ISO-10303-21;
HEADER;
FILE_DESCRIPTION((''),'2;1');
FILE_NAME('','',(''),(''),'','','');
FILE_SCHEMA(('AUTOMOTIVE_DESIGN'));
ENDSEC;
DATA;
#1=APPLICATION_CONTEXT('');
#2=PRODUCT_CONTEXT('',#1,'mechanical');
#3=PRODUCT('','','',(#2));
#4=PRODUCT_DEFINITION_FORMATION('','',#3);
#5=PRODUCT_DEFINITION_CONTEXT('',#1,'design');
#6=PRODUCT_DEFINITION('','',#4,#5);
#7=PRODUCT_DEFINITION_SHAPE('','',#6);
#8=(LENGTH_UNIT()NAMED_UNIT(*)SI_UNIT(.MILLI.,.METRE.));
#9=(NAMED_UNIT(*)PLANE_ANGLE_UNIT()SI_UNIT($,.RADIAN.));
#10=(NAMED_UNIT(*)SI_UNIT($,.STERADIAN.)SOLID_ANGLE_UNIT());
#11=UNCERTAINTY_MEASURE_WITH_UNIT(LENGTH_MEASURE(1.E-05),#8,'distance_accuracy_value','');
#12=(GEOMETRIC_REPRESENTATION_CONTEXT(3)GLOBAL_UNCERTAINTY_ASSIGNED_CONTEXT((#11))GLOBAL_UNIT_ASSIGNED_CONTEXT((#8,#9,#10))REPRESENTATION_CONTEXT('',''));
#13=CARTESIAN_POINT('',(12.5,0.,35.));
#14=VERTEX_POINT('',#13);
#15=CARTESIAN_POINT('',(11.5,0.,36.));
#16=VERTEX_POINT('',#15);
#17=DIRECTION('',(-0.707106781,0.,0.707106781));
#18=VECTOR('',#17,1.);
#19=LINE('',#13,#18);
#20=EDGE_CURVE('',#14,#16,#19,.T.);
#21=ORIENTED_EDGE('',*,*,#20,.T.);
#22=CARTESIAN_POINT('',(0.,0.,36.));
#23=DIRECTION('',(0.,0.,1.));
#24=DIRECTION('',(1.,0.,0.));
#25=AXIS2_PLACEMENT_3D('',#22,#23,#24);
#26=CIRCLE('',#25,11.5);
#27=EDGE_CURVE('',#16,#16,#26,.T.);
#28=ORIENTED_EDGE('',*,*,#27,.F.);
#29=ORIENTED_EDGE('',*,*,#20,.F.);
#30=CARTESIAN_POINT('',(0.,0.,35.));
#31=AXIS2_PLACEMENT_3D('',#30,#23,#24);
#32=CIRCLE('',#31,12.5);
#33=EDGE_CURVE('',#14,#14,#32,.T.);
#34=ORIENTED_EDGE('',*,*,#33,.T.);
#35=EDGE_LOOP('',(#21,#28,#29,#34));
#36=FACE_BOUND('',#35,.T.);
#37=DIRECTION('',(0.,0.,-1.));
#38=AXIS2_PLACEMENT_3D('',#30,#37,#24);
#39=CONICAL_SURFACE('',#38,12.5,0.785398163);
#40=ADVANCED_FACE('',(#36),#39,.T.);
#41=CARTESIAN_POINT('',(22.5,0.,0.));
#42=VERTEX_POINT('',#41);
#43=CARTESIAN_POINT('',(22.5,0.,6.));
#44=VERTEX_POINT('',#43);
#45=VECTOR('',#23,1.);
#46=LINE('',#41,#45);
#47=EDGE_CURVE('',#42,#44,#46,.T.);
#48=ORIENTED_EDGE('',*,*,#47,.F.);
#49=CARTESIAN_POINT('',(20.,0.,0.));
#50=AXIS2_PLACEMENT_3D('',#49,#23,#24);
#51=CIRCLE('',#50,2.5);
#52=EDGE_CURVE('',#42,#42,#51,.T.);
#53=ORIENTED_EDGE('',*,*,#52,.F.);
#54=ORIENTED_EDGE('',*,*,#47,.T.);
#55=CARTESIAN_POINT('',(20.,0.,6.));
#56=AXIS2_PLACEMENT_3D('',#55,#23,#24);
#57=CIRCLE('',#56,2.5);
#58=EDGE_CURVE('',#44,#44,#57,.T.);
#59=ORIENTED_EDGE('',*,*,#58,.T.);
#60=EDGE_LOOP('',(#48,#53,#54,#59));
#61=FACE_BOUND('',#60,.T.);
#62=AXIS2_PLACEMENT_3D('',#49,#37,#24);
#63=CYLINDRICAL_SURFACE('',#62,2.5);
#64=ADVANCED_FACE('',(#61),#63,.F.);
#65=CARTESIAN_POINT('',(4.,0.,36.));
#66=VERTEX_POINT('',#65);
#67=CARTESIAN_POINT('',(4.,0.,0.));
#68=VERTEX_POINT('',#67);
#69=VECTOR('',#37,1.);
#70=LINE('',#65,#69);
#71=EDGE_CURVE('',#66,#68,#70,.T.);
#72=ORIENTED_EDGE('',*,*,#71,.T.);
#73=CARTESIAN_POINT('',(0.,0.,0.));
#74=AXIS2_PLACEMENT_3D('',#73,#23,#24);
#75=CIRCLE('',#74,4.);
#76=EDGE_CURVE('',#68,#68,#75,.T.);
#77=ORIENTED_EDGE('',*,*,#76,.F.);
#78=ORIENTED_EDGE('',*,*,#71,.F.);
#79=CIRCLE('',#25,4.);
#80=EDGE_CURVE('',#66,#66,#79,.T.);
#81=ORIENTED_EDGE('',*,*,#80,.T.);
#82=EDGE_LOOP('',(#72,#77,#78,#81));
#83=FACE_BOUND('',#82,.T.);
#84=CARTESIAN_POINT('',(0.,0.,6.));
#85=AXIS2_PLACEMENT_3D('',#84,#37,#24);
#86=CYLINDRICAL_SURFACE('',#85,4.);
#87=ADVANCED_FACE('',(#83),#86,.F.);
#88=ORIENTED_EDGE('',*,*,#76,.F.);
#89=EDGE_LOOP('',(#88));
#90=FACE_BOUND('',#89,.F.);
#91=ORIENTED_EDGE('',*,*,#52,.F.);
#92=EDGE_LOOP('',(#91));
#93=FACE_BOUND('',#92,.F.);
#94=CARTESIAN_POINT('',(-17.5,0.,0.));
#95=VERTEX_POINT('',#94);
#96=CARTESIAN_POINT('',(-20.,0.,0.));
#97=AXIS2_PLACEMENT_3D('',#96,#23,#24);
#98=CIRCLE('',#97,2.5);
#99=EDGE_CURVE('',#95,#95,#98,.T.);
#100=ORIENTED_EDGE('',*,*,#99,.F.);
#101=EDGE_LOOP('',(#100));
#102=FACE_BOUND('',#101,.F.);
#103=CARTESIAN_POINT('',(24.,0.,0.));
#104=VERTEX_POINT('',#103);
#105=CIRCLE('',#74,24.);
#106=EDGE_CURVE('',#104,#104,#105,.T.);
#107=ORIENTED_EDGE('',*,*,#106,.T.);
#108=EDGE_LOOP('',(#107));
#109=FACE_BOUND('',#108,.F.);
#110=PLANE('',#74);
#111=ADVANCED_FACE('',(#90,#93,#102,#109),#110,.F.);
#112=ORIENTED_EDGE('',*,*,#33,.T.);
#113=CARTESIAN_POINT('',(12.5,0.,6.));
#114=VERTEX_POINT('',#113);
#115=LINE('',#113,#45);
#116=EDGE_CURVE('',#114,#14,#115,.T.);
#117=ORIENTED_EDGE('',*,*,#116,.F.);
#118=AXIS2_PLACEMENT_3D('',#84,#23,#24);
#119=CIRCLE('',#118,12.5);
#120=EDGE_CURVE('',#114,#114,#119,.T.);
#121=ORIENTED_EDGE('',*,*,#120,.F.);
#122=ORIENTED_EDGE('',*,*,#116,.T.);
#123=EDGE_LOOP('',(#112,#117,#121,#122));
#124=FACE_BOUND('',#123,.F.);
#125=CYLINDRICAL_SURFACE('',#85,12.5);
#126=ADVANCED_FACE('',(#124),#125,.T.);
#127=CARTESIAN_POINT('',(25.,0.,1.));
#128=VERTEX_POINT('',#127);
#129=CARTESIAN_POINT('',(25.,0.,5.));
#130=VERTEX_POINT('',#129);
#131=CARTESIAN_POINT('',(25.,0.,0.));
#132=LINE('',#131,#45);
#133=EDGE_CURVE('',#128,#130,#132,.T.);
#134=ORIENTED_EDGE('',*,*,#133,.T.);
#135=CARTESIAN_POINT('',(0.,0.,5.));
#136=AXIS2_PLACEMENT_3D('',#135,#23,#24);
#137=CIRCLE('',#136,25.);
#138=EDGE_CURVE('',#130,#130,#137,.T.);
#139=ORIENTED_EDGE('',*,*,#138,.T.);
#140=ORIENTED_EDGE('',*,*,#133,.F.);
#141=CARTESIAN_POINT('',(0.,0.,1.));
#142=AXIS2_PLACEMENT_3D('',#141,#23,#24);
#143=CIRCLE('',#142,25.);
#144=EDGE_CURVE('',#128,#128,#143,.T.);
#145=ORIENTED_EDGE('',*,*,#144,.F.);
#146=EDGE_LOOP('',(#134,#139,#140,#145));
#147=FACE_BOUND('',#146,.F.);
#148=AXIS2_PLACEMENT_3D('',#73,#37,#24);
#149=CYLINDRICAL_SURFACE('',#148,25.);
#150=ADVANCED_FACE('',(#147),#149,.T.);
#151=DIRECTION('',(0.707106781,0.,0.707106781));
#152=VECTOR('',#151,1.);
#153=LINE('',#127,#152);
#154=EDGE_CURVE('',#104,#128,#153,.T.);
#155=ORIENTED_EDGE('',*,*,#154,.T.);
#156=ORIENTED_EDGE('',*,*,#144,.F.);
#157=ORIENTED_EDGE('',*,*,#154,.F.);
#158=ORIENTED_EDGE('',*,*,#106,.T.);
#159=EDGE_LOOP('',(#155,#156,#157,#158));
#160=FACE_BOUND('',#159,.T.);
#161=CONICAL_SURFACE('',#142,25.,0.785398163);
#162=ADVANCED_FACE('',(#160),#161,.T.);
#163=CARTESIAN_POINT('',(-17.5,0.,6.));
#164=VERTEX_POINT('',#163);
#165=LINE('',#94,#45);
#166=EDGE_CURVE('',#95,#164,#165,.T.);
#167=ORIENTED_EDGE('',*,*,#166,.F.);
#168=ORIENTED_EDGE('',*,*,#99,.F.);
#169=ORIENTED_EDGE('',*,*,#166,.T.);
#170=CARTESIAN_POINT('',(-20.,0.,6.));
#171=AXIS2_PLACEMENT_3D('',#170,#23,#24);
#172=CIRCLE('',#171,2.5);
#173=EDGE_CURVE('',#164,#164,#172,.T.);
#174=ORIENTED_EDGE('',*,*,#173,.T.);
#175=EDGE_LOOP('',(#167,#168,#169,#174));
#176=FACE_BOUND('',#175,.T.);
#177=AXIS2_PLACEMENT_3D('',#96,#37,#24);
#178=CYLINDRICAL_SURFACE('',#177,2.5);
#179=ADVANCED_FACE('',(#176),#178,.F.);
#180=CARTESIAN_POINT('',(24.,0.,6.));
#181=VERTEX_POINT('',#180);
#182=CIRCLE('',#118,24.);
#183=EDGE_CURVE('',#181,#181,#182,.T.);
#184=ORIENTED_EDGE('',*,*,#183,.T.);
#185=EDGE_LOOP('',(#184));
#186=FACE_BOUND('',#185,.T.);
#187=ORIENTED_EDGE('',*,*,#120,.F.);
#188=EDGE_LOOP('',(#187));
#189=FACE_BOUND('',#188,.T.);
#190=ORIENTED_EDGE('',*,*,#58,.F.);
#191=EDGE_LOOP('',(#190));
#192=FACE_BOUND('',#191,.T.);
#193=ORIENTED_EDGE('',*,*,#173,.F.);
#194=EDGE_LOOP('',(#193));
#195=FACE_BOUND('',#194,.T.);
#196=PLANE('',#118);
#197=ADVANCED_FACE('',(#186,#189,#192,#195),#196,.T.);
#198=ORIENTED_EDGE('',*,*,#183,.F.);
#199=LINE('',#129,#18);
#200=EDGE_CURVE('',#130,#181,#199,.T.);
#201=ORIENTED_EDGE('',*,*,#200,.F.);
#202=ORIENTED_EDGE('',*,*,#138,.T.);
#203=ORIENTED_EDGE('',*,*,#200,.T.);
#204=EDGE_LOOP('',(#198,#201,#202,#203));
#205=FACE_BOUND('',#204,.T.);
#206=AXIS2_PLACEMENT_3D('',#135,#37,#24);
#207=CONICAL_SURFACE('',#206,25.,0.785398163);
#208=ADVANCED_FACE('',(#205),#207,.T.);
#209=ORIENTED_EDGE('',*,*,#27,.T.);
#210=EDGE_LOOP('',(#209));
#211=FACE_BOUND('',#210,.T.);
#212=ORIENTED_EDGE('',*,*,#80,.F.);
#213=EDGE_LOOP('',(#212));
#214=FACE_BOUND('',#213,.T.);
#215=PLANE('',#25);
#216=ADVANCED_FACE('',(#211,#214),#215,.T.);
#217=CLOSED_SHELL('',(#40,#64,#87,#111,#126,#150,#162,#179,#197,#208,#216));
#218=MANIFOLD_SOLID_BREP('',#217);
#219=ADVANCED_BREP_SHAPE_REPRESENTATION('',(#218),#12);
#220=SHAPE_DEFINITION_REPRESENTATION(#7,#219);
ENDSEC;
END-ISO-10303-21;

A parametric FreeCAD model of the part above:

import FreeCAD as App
import Part
import Sketcher
from FreeCAD import Vector
Q = App.Units.Quantity


def edges_at(feature, points):
    """Names of the edges that pass closest to the given points."""
    edges = feature.Shape.Edges
    near = lambda p: min(range(len(edges)), key=lambda i: edges[i].distToShape(Part.Vertex(*p))[0])
    return sorted({f"Edge{near(p) + 1}" for p in points})

doc = App.newDocument("Part")
body = doc.addObject("PartDesign::Body", "Body")

# Sketch on XY plane
sketch1 = body.newObject("Sketcher::SketchObject", "Sketch")
sketch1.AttachmentSupport = (doc.getObject("XY_Plane"), [""])
sketch1.MapMode = "FlatFace"
sketch1.addGeometry([
    Part.Circle(Vector(0, 0, 0), Vector(0, 0, 1), 25),
    Part.Circle(Vector(-20, 0, 0), Vector(0, 0, 1), 2.5),
    Part.Circle(Vector(0, 0, 0), Vector(0, 0, 1), 4),
    Part.Circle(Vector(20, 0, 0), Vector(0, 0, 1), 2.5),
], False)
sketch1.addConstraint([
    Sketcher.Constraint("Coincident", 0, 3, -1, 1),
    Sketcher.Constraint("Coincident", 2, 3, -1, 1),
    Sketcher.Constraint("Equal", 1, 3),
    Sketcher.Constraint("Symmetric", 1, 3, 3, 3, -1, 1),
    Sketcher.Constraint("PointOnObject", 1, 3, -1),
    Sketcher.Constraint("Diameter", 0, Q("50 mm")),
    Sketcher.Constraint("Diameter", 1, Q("5 mm")),
    Sketcher.Constraint("Diameter", 2, Q("8 mm")),
    Sketcher.Constraint("DistanceX", 1, 3, -1, 1, Q("20 mm")),
])
pad1 = body.newObject("PartDesign::Pad", "Pad")
pad1.Profile = sketch1
pad1.Length = 6

# Sketch on XY plane
sketch2 = body.newObject("Sketcher::SketchObject", "Sketch001")
sketch2.AttachmentSupport = (doc.getObject("XY_Plane"), [""])
sketch2.MapMode = "FlatFace"
sketch2.AttachmentOffset = App.Placement(Vector(0, 0, 6), App.Rotation())
sketch2.addGeometry([
    Part.Circle(Vector(0, 0, 0), Vector(0, 0, 1), 12.5),
    Part.Circle(Vector(0, 0, 0), Vector(0, 0, 1), 4),
], False)
sketch2.addConstraint([
    Sketcher.Constraint("Coincident", 0, 3, -1, 1),
    Sketcher.Constraint("Coincident", 1, 3, -1, 1),
    Sketcher.Constraint("Diameter", 0, Q("25 mm")),
    Sketcher.Constraint("Diameter", 1, Q("8 mm")),
])
pad2 = body.newObject("PartDesign::Pad", "Pad001")
pad2.Profile = sketch2
pad2.Length = 30
doc.recompute()

chamfer = body.newObject("PartDesign::Chamfer", "Chamfer")
chamfer.Base = (pad2, edges_at(pad2, [(-12.5, 0, 36), (-25, 0, 6), (-25, 0, 0)]))
chamfer.Size = 1

doc.recompute()
